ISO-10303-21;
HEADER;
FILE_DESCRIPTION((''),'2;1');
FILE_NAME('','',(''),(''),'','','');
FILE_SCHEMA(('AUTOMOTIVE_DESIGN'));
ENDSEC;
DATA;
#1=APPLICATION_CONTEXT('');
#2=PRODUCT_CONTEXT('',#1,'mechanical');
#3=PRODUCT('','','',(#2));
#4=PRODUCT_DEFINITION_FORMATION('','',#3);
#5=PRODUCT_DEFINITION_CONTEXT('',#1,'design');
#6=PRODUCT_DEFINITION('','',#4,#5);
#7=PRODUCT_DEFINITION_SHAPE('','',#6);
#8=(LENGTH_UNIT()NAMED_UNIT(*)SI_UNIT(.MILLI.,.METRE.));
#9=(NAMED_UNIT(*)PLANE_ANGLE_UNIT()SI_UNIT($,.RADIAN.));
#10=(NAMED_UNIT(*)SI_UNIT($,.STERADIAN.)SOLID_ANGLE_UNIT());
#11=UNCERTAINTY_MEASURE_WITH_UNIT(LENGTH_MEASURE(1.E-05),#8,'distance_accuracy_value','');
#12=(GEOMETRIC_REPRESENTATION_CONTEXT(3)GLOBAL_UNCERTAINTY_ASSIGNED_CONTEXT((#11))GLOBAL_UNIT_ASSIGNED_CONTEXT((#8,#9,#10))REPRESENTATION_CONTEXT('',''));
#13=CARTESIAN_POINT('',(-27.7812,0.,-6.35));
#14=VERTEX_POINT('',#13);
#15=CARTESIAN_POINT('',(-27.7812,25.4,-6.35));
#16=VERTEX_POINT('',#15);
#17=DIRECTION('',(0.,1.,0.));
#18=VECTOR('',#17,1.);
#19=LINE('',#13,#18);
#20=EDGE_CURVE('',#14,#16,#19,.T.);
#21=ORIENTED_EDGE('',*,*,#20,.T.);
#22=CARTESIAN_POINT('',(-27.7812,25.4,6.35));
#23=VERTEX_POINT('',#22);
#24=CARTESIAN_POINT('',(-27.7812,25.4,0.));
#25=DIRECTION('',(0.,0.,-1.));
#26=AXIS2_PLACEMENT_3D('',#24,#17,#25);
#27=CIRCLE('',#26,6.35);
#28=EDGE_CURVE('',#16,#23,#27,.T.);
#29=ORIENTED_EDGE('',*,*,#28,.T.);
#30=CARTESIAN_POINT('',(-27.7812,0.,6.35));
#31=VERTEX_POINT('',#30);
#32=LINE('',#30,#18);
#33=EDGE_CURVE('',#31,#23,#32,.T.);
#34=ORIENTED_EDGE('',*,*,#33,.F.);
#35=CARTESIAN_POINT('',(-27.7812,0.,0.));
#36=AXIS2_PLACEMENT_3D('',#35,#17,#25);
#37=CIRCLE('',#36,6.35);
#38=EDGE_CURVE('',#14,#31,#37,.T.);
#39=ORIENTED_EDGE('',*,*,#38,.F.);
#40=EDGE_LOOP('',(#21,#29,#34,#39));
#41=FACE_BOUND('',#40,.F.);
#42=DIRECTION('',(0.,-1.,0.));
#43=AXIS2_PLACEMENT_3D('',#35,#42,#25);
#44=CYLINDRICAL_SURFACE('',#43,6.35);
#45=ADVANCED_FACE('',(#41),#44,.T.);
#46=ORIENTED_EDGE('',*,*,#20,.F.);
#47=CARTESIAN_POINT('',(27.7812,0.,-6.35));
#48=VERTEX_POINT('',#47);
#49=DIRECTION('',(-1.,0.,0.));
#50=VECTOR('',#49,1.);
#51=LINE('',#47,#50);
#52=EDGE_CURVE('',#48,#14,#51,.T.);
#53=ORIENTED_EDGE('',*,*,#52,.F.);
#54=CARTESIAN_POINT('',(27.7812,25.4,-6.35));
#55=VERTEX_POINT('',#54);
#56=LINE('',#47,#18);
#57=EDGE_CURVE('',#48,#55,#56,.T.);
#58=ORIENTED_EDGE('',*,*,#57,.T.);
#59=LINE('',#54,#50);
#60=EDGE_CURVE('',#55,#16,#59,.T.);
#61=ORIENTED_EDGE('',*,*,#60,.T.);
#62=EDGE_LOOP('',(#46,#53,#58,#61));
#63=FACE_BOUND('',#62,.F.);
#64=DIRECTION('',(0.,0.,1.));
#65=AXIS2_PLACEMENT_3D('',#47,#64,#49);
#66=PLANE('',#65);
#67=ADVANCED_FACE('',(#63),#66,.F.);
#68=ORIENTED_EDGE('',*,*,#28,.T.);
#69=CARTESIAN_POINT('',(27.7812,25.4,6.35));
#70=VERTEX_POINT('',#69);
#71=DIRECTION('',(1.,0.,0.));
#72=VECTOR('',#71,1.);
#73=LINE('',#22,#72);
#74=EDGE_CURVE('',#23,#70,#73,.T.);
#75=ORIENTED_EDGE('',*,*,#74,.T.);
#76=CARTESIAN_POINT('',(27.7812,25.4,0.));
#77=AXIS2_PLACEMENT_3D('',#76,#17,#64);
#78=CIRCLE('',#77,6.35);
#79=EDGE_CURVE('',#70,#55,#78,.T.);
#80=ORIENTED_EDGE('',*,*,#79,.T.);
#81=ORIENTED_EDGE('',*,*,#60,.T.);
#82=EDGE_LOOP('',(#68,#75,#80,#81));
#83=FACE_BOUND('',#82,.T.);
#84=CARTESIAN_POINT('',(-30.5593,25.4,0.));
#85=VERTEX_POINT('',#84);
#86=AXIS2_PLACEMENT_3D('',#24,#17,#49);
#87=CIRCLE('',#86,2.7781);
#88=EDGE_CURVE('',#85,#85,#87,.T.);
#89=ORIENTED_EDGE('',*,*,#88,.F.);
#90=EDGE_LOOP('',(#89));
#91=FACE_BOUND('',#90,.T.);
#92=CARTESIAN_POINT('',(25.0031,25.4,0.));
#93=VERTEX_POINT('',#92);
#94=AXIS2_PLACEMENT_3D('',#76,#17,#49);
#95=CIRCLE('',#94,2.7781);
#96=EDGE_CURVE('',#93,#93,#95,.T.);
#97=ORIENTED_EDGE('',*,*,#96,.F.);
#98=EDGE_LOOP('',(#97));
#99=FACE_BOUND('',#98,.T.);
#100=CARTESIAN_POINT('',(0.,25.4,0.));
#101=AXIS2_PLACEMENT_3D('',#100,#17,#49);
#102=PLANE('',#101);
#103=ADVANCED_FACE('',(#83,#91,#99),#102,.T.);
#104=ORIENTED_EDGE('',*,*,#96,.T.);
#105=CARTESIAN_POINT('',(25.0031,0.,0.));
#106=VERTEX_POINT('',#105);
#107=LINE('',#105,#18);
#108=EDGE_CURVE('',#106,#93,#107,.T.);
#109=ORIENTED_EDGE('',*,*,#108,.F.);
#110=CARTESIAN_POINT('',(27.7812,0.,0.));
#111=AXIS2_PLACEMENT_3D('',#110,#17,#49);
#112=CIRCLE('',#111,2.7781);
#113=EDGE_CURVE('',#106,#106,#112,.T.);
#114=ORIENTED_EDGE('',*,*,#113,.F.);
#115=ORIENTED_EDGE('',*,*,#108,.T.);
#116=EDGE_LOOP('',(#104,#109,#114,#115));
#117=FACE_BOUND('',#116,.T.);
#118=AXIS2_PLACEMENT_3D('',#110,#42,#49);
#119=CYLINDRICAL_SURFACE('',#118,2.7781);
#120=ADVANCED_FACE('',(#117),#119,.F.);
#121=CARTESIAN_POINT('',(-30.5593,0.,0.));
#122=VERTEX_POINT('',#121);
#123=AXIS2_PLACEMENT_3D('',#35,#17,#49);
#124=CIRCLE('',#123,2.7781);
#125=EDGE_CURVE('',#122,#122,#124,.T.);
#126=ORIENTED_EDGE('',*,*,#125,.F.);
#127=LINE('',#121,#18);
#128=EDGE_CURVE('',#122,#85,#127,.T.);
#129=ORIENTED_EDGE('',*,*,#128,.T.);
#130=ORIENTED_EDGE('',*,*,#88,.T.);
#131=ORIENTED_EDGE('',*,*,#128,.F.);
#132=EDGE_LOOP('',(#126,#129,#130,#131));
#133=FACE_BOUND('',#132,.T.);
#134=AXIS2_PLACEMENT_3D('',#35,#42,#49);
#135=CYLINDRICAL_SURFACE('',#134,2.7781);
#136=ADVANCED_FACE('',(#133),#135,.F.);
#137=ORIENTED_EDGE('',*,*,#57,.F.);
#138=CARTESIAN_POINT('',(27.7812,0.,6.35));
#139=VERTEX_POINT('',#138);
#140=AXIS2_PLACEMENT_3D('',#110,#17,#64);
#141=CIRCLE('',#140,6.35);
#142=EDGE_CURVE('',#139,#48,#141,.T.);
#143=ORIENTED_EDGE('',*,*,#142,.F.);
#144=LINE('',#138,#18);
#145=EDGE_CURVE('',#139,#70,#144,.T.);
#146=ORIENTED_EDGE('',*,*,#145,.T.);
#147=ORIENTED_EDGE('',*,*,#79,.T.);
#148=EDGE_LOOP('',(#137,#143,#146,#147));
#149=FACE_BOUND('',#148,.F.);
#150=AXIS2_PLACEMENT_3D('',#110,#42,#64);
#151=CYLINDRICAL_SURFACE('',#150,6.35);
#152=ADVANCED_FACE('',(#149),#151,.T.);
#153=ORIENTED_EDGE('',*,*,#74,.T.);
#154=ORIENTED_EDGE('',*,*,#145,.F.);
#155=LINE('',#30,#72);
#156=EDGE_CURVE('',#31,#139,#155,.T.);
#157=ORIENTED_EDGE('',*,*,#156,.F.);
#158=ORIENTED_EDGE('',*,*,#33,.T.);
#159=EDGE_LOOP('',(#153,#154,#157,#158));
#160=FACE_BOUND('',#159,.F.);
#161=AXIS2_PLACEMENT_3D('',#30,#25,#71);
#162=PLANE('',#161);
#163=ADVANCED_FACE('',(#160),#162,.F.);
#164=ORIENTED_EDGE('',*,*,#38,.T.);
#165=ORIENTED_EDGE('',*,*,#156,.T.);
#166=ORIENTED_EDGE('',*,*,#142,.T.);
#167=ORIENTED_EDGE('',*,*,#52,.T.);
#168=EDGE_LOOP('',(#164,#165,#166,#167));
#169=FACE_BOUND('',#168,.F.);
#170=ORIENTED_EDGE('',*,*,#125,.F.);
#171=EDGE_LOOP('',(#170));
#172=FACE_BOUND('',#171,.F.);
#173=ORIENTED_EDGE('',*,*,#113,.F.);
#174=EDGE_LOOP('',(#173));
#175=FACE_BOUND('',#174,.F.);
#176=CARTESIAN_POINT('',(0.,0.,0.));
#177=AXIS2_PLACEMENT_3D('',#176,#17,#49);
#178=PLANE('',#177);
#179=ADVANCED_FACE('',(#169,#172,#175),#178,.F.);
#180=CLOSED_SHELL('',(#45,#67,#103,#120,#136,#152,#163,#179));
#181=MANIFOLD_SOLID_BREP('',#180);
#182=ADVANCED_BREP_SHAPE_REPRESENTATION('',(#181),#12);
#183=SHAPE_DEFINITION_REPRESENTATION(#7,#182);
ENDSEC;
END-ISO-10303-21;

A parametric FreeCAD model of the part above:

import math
import FreeCAD as App
import Part
import Sketcher

V = App.Vector
Q = App.Units.Quantity

doc = App.newDocument("Part")
body = doc.addObject("PartDesign::Body", "Body")

# Sketch on XZ plane
sketch1 = body.newObject("Sketcher::SketchObject", "Sketch")
sketch1.AttachmentSupport = (doc.getObject("XZ_Plane"), [""])
sketch1.MapMode = "FlatFace"
sketch1.addGeometry([
    Part.ArcOfCircle(Part.Circle(V(27.7812, 0, 0), V(0, 0, 1), 6.35), math.radians(-90), math.radians(90)),  # 0
    Part.LineSegment(V(27.7812, -6.35, 0), V(-27.7812, -6.35, 0)),  # 1
    Part.ArcOfCircle(Part.Circle(V(-27.7812, 0, 0), V(0, 0, 1), 6.35), math.radians(90), math.radians(270)),  # 2
    Part.LineSegment(V(-27.7812, 6.35, 0), V(27.7812, 6.35, 0)),  # 3
    Part.Circle(V(27.7812, 0, 0), V(0, 0, 1), 2.7781),  # 4
    Part.Circle(V(-27.7812, 0, 0), V(0, 0, 1), 2.7781),  # 5
], False)
sketch1.addConstraint([
    Sketcher.Constraint("Tangent", 0, 1, 1, 1),
    Sketcher.Constraint("Tangent", 1, 2, 2, 2),
    Sketcher.Constraint("Tangent", 2, 1, 3, 1),
    Sketcher.Constraint("Tangent", 3, 2, 0, 2),
    Sketcher.Constraint("Horizontal", 1),
    Sketcher.Constraint("Horizontal", 3),
    Sketcher.Constraint("Coincident", 4, 3, 0, 3),
    Sketcher.Constraint("Coincident", 5, 3, 2, 3),
    Sketcher.Constraint("Equal", 4, 5),
    Sketcher.Constraint("Symmetric", 0, 3, 2, 3, -1, 1),
    Sketcher.Constraint("Radius", 0, Q("0.25 in")),
    Sketcher.Constraint("Diameter", 4, Q("0.218748 in")),
    Sketcher.Constraint("DistanceX", 1, 2, 1, 1, Q("2.1875 in")),
])
pad1 = body.newObject("PartDesign::Pad", "Pad")
pad1.Profile = sketch1
pad1.Length = Q("1 in")
pad1.Reversed = True

doc.recompute()
